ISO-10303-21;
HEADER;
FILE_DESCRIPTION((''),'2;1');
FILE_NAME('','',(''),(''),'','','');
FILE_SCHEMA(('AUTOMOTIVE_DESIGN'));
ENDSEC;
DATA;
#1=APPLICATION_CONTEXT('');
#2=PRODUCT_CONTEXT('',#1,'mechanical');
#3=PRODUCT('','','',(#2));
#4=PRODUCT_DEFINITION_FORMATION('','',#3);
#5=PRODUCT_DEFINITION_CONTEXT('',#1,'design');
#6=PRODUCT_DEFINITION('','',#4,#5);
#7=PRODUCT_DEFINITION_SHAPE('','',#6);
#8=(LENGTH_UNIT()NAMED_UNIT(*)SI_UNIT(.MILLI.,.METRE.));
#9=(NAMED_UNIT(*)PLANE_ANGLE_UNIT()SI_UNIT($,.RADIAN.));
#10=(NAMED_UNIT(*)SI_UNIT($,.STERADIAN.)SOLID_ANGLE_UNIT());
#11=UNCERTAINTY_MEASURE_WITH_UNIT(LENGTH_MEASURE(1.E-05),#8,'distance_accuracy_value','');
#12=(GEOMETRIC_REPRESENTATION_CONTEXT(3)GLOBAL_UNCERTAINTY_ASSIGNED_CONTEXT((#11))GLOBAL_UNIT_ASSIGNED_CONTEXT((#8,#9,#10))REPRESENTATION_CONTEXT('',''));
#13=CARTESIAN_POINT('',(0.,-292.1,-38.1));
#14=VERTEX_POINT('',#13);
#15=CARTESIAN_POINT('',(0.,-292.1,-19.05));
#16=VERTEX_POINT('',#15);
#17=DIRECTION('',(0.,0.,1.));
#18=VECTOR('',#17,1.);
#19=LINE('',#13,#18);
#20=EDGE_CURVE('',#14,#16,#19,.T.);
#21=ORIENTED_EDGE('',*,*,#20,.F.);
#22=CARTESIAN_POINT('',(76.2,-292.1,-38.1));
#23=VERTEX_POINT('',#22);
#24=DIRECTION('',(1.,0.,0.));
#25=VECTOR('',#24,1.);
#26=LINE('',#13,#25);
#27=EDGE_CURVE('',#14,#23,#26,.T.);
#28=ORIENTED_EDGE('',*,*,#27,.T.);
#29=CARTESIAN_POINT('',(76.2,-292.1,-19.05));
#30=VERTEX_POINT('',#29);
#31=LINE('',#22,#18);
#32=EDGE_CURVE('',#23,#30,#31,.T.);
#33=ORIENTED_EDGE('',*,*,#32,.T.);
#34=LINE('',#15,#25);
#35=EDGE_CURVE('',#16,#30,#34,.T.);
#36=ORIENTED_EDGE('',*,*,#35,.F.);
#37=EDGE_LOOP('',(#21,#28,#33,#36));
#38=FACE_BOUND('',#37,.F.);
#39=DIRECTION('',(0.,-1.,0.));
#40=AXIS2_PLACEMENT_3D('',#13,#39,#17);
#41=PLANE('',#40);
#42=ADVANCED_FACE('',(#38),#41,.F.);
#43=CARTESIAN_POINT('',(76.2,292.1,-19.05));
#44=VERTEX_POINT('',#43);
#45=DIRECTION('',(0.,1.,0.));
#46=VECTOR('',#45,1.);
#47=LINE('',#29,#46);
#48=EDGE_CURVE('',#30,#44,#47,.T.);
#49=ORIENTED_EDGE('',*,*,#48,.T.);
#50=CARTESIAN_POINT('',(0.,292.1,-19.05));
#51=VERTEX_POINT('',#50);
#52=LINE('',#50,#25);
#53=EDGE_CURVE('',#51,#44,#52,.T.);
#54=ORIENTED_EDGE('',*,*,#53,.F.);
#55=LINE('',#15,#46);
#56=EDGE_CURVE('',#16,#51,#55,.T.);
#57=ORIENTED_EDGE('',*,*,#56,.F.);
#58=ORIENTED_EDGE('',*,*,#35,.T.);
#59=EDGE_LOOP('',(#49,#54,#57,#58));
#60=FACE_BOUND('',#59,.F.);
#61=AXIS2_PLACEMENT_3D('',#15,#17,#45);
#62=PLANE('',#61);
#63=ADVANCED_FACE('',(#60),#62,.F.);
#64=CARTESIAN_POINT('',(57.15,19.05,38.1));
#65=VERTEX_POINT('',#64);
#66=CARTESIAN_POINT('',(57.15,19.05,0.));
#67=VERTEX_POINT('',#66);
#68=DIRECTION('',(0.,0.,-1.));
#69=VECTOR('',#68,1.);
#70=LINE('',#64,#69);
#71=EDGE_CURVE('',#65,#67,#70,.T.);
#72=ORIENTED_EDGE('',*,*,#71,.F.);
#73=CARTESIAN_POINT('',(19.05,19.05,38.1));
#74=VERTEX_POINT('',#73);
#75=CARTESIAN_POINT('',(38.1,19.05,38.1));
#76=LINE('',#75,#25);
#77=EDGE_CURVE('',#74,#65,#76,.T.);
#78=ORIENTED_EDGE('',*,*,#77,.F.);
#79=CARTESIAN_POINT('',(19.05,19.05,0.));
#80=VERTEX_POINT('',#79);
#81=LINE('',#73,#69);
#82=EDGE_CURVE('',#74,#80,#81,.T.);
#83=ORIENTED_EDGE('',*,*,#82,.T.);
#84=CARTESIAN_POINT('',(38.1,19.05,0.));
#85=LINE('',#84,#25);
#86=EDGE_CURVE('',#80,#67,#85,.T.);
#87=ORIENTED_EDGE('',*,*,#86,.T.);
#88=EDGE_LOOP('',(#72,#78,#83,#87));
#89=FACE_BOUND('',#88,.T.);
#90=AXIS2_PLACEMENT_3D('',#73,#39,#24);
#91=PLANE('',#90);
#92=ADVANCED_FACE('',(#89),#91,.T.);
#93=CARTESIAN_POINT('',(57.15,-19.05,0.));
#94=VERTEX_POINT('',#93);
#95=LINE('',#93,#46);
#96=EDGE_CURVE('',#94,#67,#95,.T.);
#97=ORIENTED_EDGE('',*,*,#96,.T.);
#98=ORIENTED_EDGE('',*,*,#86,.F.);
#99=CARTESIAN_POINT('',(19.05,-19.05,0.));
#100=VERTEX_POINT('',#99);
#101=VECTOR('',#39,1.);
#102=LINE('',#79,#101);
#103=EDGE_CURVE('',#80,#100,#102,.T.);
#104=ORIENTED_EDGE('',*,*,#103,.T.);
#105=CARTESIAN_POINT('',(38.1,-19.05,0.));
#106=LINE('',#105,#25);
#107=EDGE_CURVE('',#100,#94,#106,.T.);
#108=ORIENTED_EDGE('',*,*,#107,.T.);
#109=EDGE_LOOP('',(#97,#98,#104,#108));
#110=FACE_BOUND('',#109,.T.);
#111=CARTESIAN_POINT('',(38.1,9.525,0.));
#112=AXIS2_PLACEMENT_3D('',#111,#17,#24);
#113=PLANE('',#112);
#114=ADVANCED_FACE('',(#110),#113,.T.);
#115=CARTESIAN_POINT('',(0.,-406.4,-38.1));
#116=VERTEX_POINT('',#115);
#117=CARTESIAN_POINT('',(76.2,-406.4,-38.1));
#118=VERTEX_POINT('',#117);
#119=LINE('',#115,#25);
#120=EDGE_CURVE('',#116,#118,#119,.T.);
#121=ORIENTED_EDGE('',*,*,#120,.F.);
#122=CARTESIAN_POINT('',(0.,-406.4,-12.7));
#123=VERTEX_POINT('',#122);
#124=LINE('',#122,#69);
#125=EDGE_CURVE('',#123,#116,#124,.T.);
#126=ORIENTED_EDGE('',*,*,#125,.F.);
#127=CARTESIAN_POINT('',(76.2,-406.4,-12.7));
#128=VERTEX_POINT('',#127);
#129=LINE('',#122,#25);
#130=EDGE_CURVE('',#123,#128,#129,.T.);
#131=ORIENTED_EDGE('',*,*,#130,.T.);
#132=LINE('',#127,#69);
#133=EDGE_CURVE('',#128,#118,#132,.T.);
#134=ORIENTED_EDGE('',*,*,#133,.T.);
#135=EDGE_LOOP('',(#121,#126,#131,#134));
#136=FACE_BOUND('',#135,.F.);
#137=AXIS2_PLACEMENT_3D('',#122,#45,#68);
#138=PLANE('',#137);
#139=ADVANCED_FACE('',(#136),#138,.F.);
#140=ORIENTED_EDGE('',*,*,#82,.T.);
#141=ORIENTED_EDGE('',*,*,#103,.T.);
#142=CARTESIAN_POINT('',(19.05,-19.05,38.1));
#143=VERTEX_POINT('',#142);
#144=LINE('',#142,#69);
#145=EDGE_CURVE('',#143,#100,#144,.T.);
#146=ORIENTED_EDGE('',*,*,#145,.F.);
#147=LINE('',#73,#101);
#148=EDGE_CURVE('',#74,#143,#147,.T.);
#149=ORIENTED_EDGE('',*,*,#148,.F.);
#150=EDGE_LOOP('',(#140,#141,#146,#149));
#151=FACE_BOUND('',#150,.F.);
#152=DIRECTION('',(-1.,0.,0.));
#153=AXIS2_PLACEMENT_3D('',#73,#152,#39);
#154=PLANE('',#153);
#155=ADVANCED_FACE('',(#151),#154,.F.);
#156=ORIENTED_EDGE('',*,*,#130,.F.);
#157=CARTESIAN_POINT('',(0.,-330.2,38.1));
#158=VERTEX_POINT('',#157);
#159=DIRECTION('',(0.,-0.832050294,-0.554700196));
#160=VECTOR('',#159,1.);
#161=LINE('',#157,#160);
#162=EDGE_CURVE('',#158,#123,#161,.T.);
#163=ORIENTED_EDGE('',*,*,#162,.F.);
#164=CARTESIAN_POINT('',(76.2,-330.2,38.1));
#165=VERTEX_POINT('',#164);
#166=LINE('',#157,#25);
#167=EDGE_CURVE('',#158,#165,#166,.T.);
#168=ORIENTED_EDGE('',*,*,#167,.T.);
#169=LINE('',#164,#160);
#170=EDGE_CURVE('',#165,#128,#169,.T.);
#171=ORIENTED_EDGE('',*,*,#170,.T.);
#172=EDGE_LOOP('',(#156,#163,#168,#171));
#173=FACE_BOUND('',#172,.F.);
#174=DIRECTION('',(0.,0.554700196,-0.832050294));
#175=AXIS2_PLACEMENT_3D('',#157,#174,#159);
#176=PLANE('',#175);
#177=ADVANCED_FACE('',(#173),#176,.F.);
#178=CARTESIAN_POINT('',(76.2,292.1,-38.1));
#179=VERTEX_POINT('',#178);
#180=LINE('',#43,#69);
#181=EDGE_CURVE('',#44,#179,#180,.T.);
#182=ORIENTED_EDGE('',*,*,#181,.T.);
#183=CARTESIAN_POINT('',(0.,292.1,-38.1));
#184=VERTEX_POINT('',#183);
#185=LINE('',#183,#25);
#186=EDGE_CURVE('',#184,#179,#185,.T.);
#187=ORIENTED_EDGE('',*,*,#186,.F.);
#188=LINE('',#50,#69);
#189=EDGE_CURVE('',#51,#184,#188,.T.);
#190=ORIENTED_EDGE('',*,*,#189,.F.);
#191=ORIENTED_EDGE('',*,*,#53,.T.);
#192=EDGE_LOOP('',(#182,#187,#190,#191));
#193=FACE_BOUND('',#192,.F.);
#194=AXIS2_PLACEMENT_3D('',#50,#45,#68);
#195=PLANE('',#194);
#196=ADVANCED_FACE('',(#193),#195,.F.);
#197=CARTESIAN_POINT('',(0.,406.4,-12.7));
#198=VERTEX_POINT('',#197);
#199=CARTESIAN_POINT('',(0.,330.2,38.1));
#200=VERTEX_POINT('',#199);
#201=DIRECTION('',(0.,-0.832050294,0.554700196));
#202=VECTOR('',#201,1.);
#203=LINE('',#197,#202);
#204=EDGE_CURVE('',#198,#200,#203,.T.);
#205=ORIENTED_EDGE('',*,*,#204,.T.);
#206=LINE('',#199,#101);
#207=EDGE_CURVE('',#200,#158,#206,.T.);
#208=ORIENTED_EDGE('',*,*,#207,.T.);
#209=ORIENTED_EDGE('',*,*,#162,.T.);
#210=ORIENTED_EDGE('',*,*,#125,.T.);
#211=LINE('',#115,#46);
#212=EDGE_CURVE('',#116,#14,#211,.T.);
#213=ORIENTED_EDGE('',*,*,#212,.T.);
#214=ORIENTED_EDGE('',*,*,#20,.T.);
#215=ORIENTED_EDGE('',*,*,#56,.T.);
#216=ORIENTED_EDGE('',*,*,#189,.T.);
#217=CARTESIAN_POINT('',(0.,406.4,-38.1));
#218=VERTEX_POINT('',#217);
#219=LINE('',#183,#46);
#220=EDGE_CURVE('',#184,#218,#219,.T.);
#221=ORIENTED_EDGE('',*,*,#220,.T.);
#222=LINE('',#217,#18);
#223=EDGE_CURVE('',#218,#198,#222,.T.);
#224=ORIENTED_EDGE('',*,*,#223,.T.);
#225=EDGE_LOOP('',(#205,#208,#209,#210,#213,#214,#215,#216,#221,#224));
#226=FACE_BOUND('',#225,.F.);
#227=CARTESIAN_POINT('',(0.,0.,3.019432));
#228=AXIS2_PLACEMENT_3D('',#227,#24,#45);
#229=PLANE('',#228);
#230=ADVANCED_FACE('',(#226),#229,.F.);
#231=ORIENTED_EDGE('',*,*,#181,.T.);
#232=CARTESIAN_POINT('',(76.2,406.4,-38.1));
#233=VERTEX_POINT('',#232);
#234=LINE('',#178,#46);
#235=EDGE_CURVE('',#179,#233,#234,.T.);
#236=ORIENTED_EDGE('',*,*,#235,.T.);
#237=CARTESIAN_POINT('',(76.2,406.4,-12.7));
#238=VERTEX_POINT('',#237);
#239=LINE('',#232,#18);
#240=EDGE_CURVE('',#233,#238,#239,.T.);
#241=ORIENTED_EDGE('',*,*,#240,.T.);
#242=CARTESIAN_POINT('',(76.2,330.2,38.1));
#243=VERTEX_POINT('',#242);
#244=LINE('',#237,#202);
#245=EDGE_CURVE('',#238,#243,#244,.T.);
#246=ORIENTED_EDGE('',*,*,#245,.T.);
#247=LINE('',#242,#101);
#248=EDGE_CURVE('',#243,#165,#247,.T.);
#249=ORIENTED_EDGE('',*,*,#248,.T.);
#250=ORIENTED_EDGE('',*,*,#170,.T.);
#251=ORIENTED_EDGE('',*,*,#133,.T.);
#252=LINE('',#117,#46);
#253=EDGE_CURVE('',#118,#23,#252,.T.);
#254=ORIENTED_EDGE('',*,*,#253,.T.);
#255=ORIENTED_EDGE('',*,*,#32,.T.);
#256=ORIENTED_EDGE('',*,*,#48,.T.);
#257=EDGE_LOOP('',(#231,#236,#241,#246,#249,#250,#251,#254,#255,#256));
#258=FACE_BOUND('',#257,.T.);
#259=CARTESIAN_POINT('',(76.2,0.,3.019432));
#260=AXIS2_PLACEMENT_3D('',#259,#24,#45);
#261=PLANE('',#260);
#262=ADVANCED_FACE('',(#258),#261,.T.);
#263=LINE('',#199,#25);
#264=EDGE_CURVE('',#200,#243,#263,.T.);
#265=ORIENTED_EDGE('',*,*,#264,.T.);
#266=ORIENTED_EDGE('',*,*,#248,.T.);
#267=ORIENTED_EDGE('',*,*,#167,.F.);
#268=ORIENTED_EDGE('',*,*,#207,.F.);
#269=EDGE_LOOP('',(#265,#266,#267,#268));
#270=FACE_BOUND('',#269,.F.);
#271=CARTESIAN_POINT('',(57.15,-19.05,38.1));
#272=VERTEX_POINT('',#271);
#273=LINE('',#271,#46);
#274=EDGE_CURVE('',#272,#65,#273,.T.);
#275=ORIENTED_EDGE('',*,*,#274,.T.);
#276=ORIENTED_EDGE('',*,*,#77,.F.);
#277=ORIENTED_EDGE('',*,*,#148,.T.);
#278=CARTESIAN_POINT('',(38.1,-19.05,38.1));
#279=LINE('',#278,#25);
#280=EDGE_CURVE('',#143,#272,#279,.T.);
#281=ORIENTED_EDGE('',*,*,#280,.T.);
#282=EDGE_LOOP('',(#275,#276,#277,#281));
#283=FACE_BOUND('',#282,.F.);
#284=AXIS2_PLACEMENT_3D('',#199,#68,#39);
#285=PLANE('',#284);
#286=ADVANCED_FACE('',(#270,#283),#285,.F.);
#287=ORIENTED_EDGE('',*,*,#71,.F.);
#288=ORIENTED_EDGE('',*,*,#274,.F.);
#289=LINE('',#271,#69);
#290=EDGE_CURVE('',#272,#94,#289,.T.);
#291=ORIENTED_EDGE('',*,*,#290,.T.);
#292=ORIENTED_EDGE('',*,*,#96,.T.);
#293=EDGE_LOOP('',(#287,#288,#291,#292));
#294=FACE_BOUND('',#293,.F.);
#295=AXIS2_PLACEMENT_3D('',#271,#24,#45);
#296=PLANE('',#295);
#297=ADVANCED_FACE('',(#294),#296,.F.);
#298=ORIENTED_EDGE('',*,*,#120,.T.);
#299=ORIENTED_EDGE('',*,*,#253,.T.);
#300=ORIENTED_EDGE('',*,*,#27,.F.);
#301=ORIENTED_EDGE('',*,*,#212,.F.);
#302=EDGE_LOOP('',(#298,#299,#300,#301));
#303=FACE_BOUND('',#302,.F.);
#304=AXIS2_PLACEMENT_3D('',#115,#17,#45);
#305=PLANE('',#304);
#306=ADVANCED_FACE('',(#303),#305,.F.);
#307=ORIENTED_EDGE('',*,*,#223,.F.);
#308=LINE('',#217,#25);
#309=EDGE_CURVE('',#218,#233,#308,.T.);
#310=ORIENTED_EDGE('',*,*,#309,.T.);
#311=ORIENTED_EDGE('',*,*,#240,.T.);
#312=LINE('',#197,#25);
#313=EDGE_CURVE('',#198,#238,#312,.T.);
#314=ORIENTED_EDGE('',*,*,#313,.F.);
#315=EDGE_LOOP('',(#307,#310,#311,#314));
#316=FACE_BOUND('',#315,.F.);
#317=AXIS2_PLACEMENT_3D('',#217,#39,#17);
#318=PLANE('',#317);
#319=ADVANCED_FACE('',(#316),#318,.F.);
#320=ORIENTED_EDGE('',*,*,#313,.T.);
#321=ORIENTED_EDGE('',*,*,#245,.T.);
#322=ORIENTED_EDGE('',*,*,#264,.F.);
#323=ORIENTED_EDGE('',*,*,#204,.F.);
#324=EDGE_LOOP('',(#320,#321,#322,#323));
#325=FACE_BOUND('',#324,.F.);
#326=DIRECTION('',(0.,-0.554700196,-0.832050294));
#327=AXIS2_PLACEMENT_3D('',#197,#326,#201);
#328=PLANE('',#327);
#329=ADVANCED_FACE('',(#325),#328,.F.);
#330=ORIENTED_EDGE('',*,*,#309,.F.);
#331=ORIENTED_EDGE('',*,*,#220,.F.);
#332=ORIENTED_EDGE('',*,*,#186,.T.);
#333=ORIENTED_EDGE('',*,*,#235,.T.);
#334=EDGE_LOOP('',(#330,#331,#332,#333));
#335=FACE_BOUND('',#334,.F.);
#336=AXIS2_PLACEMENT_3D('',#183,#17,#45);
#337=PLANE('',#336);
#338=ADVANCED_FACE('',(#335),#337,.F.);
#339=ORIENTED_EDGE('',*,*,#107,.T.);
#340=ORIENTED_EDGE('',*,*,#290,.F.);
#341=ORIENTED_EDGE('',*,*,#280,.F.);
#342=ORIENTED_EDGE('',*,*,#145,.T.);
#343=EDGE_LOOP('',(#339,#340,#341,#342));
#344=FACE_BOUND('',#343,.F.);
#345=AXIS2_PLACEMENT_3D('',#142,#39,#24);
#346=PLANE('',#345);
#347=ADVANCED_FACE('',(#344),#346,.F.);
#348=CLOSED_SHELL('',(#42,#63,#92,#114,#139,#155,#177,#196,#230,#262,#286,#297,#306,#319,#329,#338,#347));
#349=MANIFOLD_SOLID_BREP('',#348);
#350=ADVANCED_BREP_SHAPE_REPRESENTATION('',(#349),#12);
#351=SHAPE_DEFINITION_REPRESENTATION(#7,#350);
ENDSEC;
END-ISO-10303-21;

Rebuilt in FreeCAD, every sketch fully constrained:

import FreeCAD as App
import Part
import Sketcher

V = App.Vector
Q = App.Units.Quantity

doc = App.newDocument("Part")
body = doc.addObject("PartDesign::Body", "Body")

# Sketch on YZ plane
sketch1 = doc.addObject("Sketcher::SketchObject", "Sketch")
body.addObject(sketch1)
sketch1.AttachmentSupport = (doc.YZ_Plane, [""])
sketch1.MapMode = "FlatFace"
sketch1.addGeometry([
    Part.LineSegment(V(406, -13, 0), V(330, 38, 0)),  # 0
    Part.LineSegment(V(330, 38, 0), V(-330, 38, 0)),  # 1
    Part.LineSegment(V(-330, 38, 0), V(-406, -13, 0)),  # 2
    Part.LineSegment(V(-406, -13, 0), V(-406, -38, 0)),  # 3
    Part.LineSegment(V(-406, -38, 0), V(-292, -38, 0)),  # 4
    Part.LineSegment(V(-292, -38, 0), V(-292, -19, 0)),  # 5
    Part.LineSegment(V(-292, -19, 0), V(292, -19, 0)),  # 6
    Part.LineSegment(V(292, -19, 0), V(292, -38, 0)),  # 7
    Part.LineSegment(V(292, -38, 0), V(406, -38, 0)),  # 8
    Part.LineSegment(V(406, -38, 0), V(406, -13, 0)),  # 9
], False)
sketch1.addConstraint([
    Sketcher.Constraint("Coincident", 0, 2, 1, 1),
    Sketcher.Constraint("Coincident", 1, 2, 2, 1),
    Sketcher.Constraint("Coincident", 2, 2, 3, 1),
    Sketcher.Constraint("Coincident", 3, 2, 4, 1),
    Sketcher.Constraint("Coincident", 4, 2, 5, 1),
    Sketcher.Constraint("Coincident", 5, 2, 6, 1),
    Sketcher.Constraint("Coincident", 6, 2, 7, 1),
    Sketcher.Constraint("Coincident", 7, 2, 8, 1),
    Sketcher.Constraint("Coincident", 8, 2, 9, 1),
    Sketcher.Constraint("Coincident", 9, 2, 0, 1),
    Sketcher.Constraint("Horizontal", 1),
    Sketcher.Constraint("Vertical", 3),
    Sketcher.Constraint("Horizontal", 4),
    Sketcher.Constraint("Vertical", 5),
    Sketcher.Constraint("Horizontal", 6),
    Sketcher.Constraint("Vertical", 7),
    Sketcher.Constraint("Horizontal", 8),
    Sketcher.Constraint("Vertical", 9),
    Sketcher.Constraint("Symmetric", 4, 2, 7, 2, -2),
    Sketcher.Constraint("Symmetric", 2, 2, 9, 2, -2),
    Sketcher.Constraint("Equal", 0, 2),
    Sketcher.Constraint("DistanceX", 1, 2, 1, 1, Q("26 in")),
    Sketcher.Constraint("DistanceX", 6, 1, 6, 2, Q("23 in")),
    Sketcher.Constraint("DistanceY", 3, 2, 3, 1, Q("1 in")),
    Sketcher.Constraint("DistanceX", 4, 1, 4, 2, Q("4.5 in")),
    Sketcher.Constraint("DistanceY", 2, 2, 1, 2, Q("2 in")),
    Sketcher.Constraint("DistanceY", 5, 1, 5, 2, Q("0.75 in")),
    Sketcher.Constraint("DistanceY", -1, 1, 0, 2, Q("1.5 in")),
])
pad1 = doc.addObject("PartDesign::Pad", "Pad")
body.addObject(pad1)
pad1.Profile = sketch1
pad1.Length = Q("3 in")

# Sketch on XY plane
sketch2 = doc.addObject("Sketcher::SketchObject", "Sketch001")
body.addObject(sketch2)
sketch2.AttachmentSupport = (doc.XY_Plane, [""])
sketch2.MapMode = "FlatFace"
sketch2.AttachmentOffset = App.Placement(V(0, 0, 1.5 * 25.4), App.Rotation())
sketch2.addGeometry([
    Part.LineSegment(V(19, 19, 0), V(19, -19, 0)),
    Part.LineSegment(V(19, -19, 0), V(57, -19, 0)),
    Part.LineSegment(V(57, -19, 0), V(57, 19, 0)),
    Part.LineSegment(V(57, 19, 0), V(19, 19, 0)),
], False)
sketch2.addConstraint([
    Sketcher.Constraint("Coincident", 0, 2, 1, 1),
    Sketcher.Constraint("Coincident", 1, 2, 2, 1),
    Sketcher.Constraint("Coincident", 2, 2, 3, 1),
    Sketcher.Constraint("Coincident", 3, 2, 0, 1),
    Sketcher.Constraint("Vertical", 0),
    Sketcher.Constraint("Horizontal", 1),
    Sketcher.Constraint("Vertical", 2),
    Sketcher.Constraint("Horizontal", 3),
    Sketcher.Constraint("Equal", 3, 0),
    Sketcher.Constraint("DistanceX", 1, 1, 1, 2, Q("1.5 in")),
    Sketcher.Constraint("DistanceX", -1, 1, 0, 2, Q("0.75 in")),
    Sketcher.Constraint("DistanceY", 0, 2, -1, 1, Q("0.75 in")),
])
pocket1 = doc.addObject("PartDesign::Pocket", "Pocket")
body.addObject(pocket1)
pocket1.Profile = sketch2
pocket1.Length = Q("1.5 in")

doc.recompute()
